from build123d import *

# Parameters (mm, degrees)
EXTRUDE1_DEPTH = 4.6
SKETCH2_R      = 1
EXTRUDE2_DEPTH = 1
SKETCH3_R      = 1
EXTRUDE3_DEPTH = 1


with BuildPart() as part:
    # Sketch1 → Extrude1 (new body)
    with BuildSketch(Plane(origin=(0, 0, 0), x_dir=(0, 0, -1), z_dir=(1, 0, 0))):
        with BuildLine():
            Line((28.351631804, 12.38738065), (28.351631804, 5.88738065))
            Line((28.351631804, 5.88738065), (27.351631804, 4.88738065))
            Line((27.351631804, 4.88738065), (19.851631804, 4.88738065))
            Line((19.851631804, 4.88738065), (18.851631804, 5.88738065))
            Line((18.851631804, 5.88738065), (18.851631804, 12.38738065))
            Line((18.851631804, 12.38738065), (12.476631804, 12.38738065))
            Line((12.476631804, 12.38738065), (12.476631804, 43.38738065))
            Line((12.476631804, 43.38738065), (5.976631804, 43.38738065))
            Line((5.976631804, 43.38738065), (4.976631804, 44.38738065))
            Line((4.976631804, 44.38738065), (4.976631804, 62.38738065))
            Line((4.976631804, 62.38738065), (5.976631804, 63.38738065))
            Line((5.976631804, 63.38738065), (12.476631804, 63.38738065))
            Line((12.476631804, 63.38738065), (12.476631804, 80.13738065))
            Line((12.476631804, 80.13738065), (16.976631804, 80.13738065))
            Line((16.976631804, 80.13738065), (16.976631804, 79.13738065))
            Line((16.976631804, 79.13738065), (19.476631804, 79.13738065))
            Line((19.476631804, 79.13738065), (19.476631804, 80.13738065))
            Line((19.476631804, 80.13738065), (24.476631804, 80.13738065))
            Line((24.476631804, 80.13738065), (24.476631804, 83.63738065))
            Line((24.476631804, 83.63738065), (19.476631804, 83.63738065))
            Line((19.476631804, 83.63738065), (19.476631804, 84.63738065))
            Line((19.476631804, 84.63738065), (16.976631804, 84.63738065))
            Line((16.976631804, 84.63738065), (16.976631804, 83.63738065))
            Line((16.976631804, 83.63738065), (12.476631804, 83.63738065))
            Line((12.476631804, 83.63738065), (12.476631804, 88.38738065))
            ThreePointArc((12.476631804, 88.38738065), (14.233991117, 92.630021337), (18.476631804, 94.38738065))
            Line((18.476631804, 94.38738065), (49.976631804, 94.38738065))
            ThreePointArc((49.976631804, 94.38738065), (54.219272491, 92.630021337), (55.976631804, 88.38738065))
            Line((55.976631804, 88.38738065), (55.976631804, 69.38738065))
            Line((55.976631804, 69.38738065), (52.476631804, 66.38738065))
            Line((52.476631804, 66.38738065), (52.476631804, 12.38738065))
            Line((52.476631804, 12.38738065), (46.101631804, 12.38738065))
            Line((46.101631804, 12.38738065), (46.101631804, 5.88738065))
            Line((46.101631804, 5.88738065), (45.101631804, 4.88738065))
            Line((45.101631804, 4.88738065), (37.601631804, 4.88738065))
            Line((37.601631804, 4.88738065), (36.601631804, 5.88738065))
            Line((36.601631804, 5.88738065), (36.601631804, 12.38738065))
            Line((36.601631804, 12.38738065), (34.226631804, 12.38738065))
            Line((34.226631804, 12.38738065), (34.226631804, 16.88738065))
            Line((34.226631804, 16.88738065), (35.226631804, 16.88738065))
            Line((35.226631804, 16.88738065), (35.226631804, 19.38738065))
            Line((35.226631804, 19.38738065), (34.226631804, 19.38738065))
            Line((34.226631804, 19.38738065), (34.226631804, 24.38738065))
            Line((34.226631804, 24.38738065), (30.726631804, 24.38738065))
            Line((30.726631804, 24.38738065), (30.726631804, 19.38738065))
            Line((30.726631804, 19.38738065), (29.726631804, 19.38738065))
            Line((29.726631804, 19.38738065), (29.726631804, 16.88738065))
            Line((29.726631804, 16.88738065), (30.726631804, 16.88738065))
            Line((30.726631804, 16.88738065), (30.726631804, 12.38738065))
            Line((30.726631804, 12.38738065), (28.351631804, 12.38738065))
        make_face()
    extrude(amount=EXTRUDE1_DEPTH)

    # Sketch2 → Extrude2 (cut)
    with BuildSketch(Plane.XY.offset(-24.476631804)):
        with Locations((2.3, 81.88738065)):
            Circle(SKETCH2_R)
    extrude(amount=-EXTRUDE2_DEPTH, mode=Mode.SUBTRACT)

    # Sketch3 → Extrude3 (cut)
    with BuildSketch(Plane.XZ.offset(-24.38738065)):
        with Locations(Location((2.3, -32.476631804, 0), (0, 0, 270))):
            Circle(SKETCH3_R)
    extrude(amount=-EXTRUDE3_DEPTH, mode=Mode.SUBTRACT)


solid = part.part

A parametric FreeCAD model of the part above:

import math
import FreeCAD as App
import Part
import Sketcher

V = App.Vector
Q = App.Units.Quantity

doc = App.newDocument("Part")
body = doc.addObject("PartDesign::Body", "Body")

# Sketch on YZ plane
sketch1 = body.newObject("Sketcher::SketchObject", "Sketch")
sketch1.AttachmentSupport = (doc.getObject("YZ_Plane"), [""])
sketch1.MapMode = "FlatFace"
sketch1.addGeometry([
    Part.LineSegment(V(5.9, -28.4, 0), V(12.4, -28.4, 0)),  # 0
    Part.LineSegment(V(12.4, -28.4, 0), V(12.4, -30.7, 0)),  # 1
    Part.LineSegment(V(12.4, -30.7, 0), V(16.9, -30.7, 0)),  # 2
    Part.LineSegment(V(16.9, -30.7, 0), V(16.9, -29.7, 0)),  # 3
    Part.LineSegment(V(16.9, -29.7, 0), V(19.4, -29.7, 0)),  # 4
    Part.LineSegment(V(19.4, -29.7, 0), V(19.4, -30.7, 0)),  # 5
    Part.LineSegment(V(19.4, -30.7, 0), V(24.4, -30.7, 0)),  # 6
    Part.LineSegment(V(24.4, -30.7, 0), V(24.4, -34.2, 0)),  # 7
    Part.LineSegment(V(24.4, -34.2, 0), V(19.4, -34.2, 0)),  # 8
    Part.LineSegment(V(19.4, -34.2, 0), V(19.4, -35.2, 0)),  # 9
    Part.LineSegment(V(19.4, -35.2, 0), V(16.9, -35.2, 0)),  # 10
    Part.LineSegment(V(16.9, -35.2, 0), V(16.9, -34.2, 0)),  # 11
    Part.LineSegment(V(16.9, -34.2, 0), V(12.4, -34.2, 0)),  # 12
    Part.LineSegment(V(12.4, -34.2, 0), V(12.4, -36.6, 0)),  # 13
    Part.LineSegment(V(12.4, -36.6, 0), V(5.9, -36.6, 0)),  # 14
    Part.LineSegment(V(5.9, -36.6, 0), V(4.9, -37.6, 0)),  # 15
    Part.LineSegment(V(4.9, -37.6, 0), V(4.9, -45.1, 0)),  # 16
    Part.LineSegment(V(4.9, -45.1, 0), V(5.9, -46.1, 0)),  # 17
    Part.LineSegment(V(5.9, -46.1, 0), V(12.4, -46.1, 0)),  # 18
    Part.LineSegment(V(12.4, -46.1, 0), V(12.4, -52.5, 0)),  # 19
    Part.LineSegment(V(12.4, -52.5, 0), V(66.4, -52.5, 0)),  # 20
    Part.LineSegment(V(66.4, -52.5, 0), V(69.4, -56, 0)),  # 21
    Part.LineSegment(V(69.4, -56, 0), V(88.4, -56, 0)),  # 22
    Part.ArcOfCircle(Part.Circle(V(88.4, -50, 0), V(0, 0, 1), 6), math.radians(-90), math.radians(0)),  # 23
    Part.LineSegment(V(94.4, -50, 0), V(94.4, -18.5, 0)),  # 24
    Part.ArcOfCircle(Part.Circle(V(88.4, -18.5, 0), V(0, 0, 1), 6), math.radians(0), math.radians(90)),  # 25
    Part.LineSegment(V(88.4, -12.5, 0), V(83.6, -12.5, 0)),  # 26
    Part.LineSegment(V(83.6, -12.5, 0), V(83.6, -17, 0)),  # 27
    Part.LineSegment(V(83.6, -17, 0), V(84.6, -17, 0)),  # 28
    Part.LineSegment(V(84.6, -17, 0), V(84.6, -19.5, 0)),  # 29
    Part.LineSegment(V(84.6, -19.5, 0), V(83.6, -19.5, 0)),  # 30
    Part.LineSegment(V(83.6, -19.5, 0), V(83.6, -24.5, 0)),  # 31
    Part.LineSegment(V(83.6, -24.5, 0), V(80.1, -24.5, 0)),  # 32
    Part.LineSegment(V(80.1, -24.5, 0), V(80.1, -19.5, 0)),  # 33
    Part.LineSegment(V(80.1, -19.5, 0), V(79.1, -19.5, 0)),  # 34
    Part.LineSegment(V(79.1, -19.5, 0), V(79.1, -17, 0)),  # 35
    Part.LineSegment(V(79.1, -17, 0), V(80.1, -17, 0)),  # 36
    Part.LineSegment(V(80.1, -17, 0), V(80.1, -12.5, 0)),  # 37
    Part.LineSegment(V(80.1, -12.5, 0), V(63.4, -12.5, 0)),  # 38
    Part.LineSegment(V(63.4, -12.5, 0), V(63.4, -6, 0)),  # 39
    Part.LineSegment(V(63.4, -6, 0), V(62.4, -5, 0)),  # 40
    Part.LineSegment(V(62.4, -5, 0), V(44.4, -5, 0)),  # 41
    Part.LineSegment(V(44.4, -5, 0), V(43.4, -6, 0)),  # 42
    Part.LineSegment(V(43.4, -6, 0), V(43.4, -12.5, 0)),  # 43
    Part.LineSegment(V(43.4, -12.5, 0), V(12.4, -12.5, 0)),  # 44
    Part.LineSegment(V(12.4, -12.5, 0), V(12.4, -18.9, 0)),  # 45
    Part.LineSegment(V(12.4, -18.9, 0), V(5.9, -18.9, 0)),  # 46
    Part.LineSegment(V(5.9, -18.9, 0), V(4.9, -19.9, 0)),  # 47
    Part.LineSegment(V(4.9, -19.9, 0), V(4.9, -27.4, 0)),  # 48
    Part.LineSegment(V(4.9, -27.4, 0), V(5.9, -28.4, 0)),  # 49
], False)
sketch1.addConstraint([
    Sketcher.Constraint("Coincident", 0, 2, 1, 1),
    Sketcher.Constraint("Coincident", 1, 2, 2, 1),
    Sketcher.Constraint("Coincident", 2, 2, 3, 1),
    Sketcher.Constraint("Coincident", 3, 2, 4, 1),
    Sketcher.Constraint("Coincident", 4, 2, 5, 1),
    Sketcher.Constraint("Coincident", 5, 2, 6, 1),
    Sketcher.Constraint("Coincident", 6, 2, 7, 1),
    Sketcher.Constraint("Coincident", 7, 2, 8, 1),
    Sketcher.Constraint("Coincident", 8, 2, 9, 1),
    Sketcher.Constraint("Coincident", 9, 2, 10, 1),
    Sketcher.Constraint("Coincident", 10, 2, 11, 1),
    Sketcher.Constraint("Coincident", 11, 2, 12, 1),
    Sketcher.Constraint("Coincident", 12, 2, 13, 1),
    Sketcher.Constraint("Coincident", 13, 2, 14, 1),
    Sketcher.Constraint("Coincident", 14, 2, 15, 1),
    Sketcher.Constraint("Coincident", 15, 2, 16, 1),
    Sketcher.Constraint("Coincident", 16, 2, 17, 1),
    Sketcher.Constraint("Coincident", 17, 2, 18, 1),
    Sketcher.Constraint("Coincident", 18, 2, 19, 1),
    Sketcher.Constraint("Coincident", 19, 2, 20, 1),
    Sketcher.Constraint("Coincident", 20, 2, 21, 1),
    Sketcher.Constraint("Coincident", 21, 2, 22, 1),
    Sketcher.Constraint("Tangent", 22, 2, 23, 1),
    Sketcher.Constraint("Tangent", 23, 2, 24, 1),
    Sketcher.Constraint("Tangent", 24, 2, 25, 1),
    Sketcher.Constraint("Tangent", 25, 2, 26, 1),
    Sketcher.Constraint("Coincident", 26, 2, 27, 1),
    Sketcher.Constraint("Coincident", 27, 2, 28, 1),
    Sketcher.Constraint("Coincident", 28, 2, 29, 1),
    Sketcher.Constraint("Coincident", 29, 2, 30, 1),
    Sketcher.Constraint("Coincident", 30, 2, 31, 1),
    Sketcher.Constraint("Coincident", 31, 2, 32, 1),
    Sketcher.Constraint("Coincident", 32, 2, 33, 1),
    Sketcher.Constraint("Coincident", 33, 2, 34, 1),
    Sketcher.Constraint("Coincident", 34, 2, 35, 1),
    Sketcher.Constraint("Coincident", 35, 2, 36, 1),
    Sketcher.Constraint("Coincident", 36, 2, 37, 1),
    Sketcher.Constraint("Coincident", 37, 2, 38, 1),
    Sketcher.Constraint("Coincident", 38, 2, 39, 1),
    Sketcher.Constraint("Coincident", 39, 2, 40, 1),
    Sketcher.Constraint("Coincident", 40, 2, 41, 1),
    Sketcher.Constraint("Coincident", 41, 2, 42, 1),
    Sketcher.Constraint("Coincident", 42, 2, 43, 1),
    Sketcher.Constraint("Coincident", 43, 2, 44, 1),
    Sketcher.Constraint("Coincident", 44, 2, 45, 1),
    Sketcher.Constraint("Coincident", 45, 2, 46, 1),
    Sketcher.Constraint("Coincident", 46, 2, 47, 1),
    Sketcher.Constraint("Coincident", 47, 2, 48, 1),
    Sketcher.Constraint("Coincident", 48, 2, 49, 1),
    Sketcher.Constraint("Coincident", 49, 2, 0, 1),
    Sketcher.Constraint("Horizontal", 0),
    Sketcher.Constraint("Vertical", 1),
    Sketcher.Constraint("Horizontal", 2),
    Sketcher.Constraint("Vertical", 3),
    Sketcher.Constraint("Horizontal", 4),
    Sketcher.Constraint("Vertical", 5),
    Sketcher.Constraint("Horizontal", 6),
    Sketcher.Constraint("Vertical", 7),
    Sketcher.Constraint("Horizontal", 8),
    Sketcher.Constraint("Vertical", 9),
    Sketcher.Constraint("Horizontal", 10),
    Sketcher.Constraint("Vertical", 11),
    Sketcher.Constraint("Horizontal", 12),
    Sketcher.Constraint("Vertical", 13),
    Sketcher.Constraint("Horizontal", 14),
    Sketcher.Constraint("Vertical", 16),
    Sketcher.Constraint("Horizontal", 18),
    Sketcher.Constraint("Vertical", 19),
    Sketcher.Constraint("Horizontal", 20),
    Sketcher.Constraint("Horizontal", 22),
    Sketcher.Constraint("Vertical", 24),
    Sketcher.Constraint("Horizontal", 26),
    Sketcher.Constraint("Vertical", 27),
    Sketcher.Constraint("Horizontal", 28),
    Sketcher.Constraint("Vertical", 29),
    Sketcher.Constraint("Horizontal", 30),
    Sketcher.Constraint("Vertical", 31),
    Sketcher.Constraint("Horizontal", 32),
    Sketcher.Constraint("Vertical", 33),
    Sketcher.Constraint("Horizontal", 34),
    Sketcher.Constraint("Vertical", 35),
    Sketcher.Constraint("Horizontal", 36),
    Sketcher.Constraint("Vertical", 37),
    Sketcher.Constraint("Horizontal", 38),
    Sketcher.Constraint("Vertical", 39),
    Sketcher.Constraint("Horizontal", 41),
    Sketcher.Constraint("Vertical", 43),
    Sketcher.Constraint("Horizontal", 44),
    Sketcher.Constraint("Vertical", 45),
    Sketcher.Constraint("Horizontal", 46),
    Sketcher.Constraint("Vertical", 48),
    Sketcher.Constraint("Equal", 23, 25),
    Sketcher.Constraint("Perpendicular", 15, 17),
    Sketcher.Constraint("Parallel", 17, 40),
    Sketcher.Constraint("Perpendicular", 40, 42),
    Sketcher.Constraint("Parallel", 42, 47),
    Sketcher.Constraint("Perpendicular", 47, 49),
    Sketcher.Constraint("Horizontal", 2, 2, 5, 2),
    Sketcher.Constraint("Horizontal", 8, 2, 11, 2),
    Sketcher.Constraint("Horizontal", 30, 2, 33, 2),
    Sketcher.Constraint("Horizontal", 28, 2, 35, 2),
    Sketcher.Constraint("Horizontal", 26, 2, 37, 2),
    Sketcher.Constraint("Horizontal", 39, 2, 42, 2),
    Sketcher.Constraint("Horizontal", 38, 2, 43, 2),
    Sketcher.Constraint("Vertical", 5, 2, 8, 2),
    Sketcher.Constraint("Vertical", 3, 2, 10, 2),
    Sketcher.Constraint("Vertical", 1, 2, 12, 2),
    Sketcher.Constraint("Vertical", 14, 2, 17, 2),
    Sketcher.Constraint("Vertical", 13, 2, 18, 2),
    Sketcher.Constraint("Vertical", 27, 2, 30, 2),
    Sketcher.Constraint("Vertical", 33, 2, 36, 2),
    Sketcher.Constraint("Vertical", 19, 2, 44, 2),
    Sketcher.Constraint("Vertical", 17, 2, 46, 2),
    Sketcher.Constraint("Vertical", 16, 2, 47, 2),
    Sketcher.Constraint("Vertical", 46, 2, 49, 2),
    Sketcher.Constraint("Equal", 30, 34),
    Sketcher.Constraint("Equal", 36, 3),
    Sketcher.Constraint("Equal", 32, 7),
    Sketcher.Constraint("Equal", 5, 9),
    Sketcher.Constraint("Equal", 1, 13),
    Sketcher.Constraint("Equal", 12, 27),
    Sketcher.Constraint("Equal", 10, 29),
    Sketcher.Constraint("Equal", 8, 31),
    Sketcher.Constraint("Equal", 46, 39),
    Sketcher.Constraint("Equal", 19, 45),
    Sketcher.Constraint("Equal", 16, 48),
    Sketcher.Constraint("Equal", 15, 17),
    Sketcher.Constraint("Equal", 17, 40),
    Sketcher.Constraint("Radius", 23, Q("6 mm")),
    Sketcher.Constraint("DistanceX", 6, 1, 6, 2, Q("5 mm")),
    Sketcher.Constraint("DistanceX", 20, 1, 20, 2, Q("54 mm")),
    Sketcher.Constraint("DistanceX", 22, 1, 22, 2, Q("19 mm")),
    Sketcher.Constraint("DistanceX", 28, 1, 28, 2, Q("1 mm")),
    Sketcher.Constraint("DistanceX", 41, 2, 41, 1, Q("18 mm")),
    Sketcher.Constraint("DistanceX", 44, 2, 44, 1, Q("31 mm")),
    Sketcher.Constraint("DistanceX", 0, 1, 0, 2, Q("6.5 mm")),
    Sketcher.Constraint("DistanceX", 2, 1, 2, 2, Q("4.5 mm")),
    Sketcher.Constraint("DistanceX", 4, 1, 4, 2, Q("2.5 mm")),
    Sketcher.Constraint("DistanceX", 32, 2, 32, 1, Q("3.5 mm")),
    Sketcher.Constraint("DistanceY", 16, 2, 16, 1, Q("7.5 mm")),
    Sketcher.Constraint("DistanceY", 24, 1, 24, 2, Q("31.5 mm")),
    Sketcher.Constraint("DistanceX", 0, 2, 25, 3, Q("76 mm")),
    Sketcher.Constraint("DistanceX", 15, 2, 14, 2, Q("1 mm")),
    Sketcher.Constraint("DistanceY", 20, 2, 25, 3, Q("34 mm")),
    Sketcher.Constraint("DistanceX", 26, 2, 26, 1, Q("4.75 mm")),
    Sketcher.Constraint("DistanceY", 1, 2, 1, 1, Q("2.375 mm")),
    Sketcher.Constraint("DistanceX", -1, 1, 23, 3, Q("88.387381 mm")),
    Sketcher.Constraint("DistanceY", 23, 3, -1, 1, Q("49.976632 mm")),
])
pad1 = body.newObject("PartDesign::Pad", "Pad")
pad1.Profile = sketch1
pad1.Length = 4.6

# Sketch on XY plane
sketch2 = body.newObject("Sketcher::SketchObject", "Sketch001")
sketch2.AttachmentSupport = (doc.getObject("XY_Plane"), [""])
sketch2.MapMode = "FlatFace"
sketch2.AttachmentOffset = App.Placement(V(0, 0, -24.476632), App.Rotation())
sketch2.addGeometry(Part.Circle(V(2.3, 81.9, 0), V(0, 0, 1), 1), False)
sketch2.addConstraint([
    Sketcher.Constraint("Diameter", 0, Q("2 mm")),
    Sketcher.Constraint("DistanceX", -1, 1, 0, 3, Q("2.3 mm")),
    Sketcher.Constraint("DistanceY", -1, 1, 0, 3, Q("81.887381 mm")),
])
pocket1 = body.newObject("PartDesign::Pocket", "Pocket")
pocket1.Profile = sketch2
pocket1.Length = 1

# Sketch on XZ plane
sketch3 = body.newObject("Sketcher::SketchObject", "Sketch002")
sketch3.AttachmentSupport = (doc.getObject("XZ_Plane"), [""])
sketch3.MapMode = "FlatFace"
sketch3.AttachmentOffset = App.Placement(V(0, 0, -24.387381), App.Rotation())
sketch3.addGeometry(Part.Circle(V(2.3, -32.5, 0), V(0, 0, 1), 1), False)
sketch3.addConstraint([
    Sketcher.Constraint("Diameter", 0, Q("2 mm")),
    Sketcher.Constraint("DistanceX", -1, 1, 0, 3, Q("2.3 mm")),
    Sketcher.Constraint("DistanceY", 0, 3, -1, 1, Q("32.476632 mm")),
])
pocket2 = body.newObject("PartDesign::Pocket", "Pocket001")
pocket2.Profile = sketch3
pocket2.Length = 1

doc.recompute()
